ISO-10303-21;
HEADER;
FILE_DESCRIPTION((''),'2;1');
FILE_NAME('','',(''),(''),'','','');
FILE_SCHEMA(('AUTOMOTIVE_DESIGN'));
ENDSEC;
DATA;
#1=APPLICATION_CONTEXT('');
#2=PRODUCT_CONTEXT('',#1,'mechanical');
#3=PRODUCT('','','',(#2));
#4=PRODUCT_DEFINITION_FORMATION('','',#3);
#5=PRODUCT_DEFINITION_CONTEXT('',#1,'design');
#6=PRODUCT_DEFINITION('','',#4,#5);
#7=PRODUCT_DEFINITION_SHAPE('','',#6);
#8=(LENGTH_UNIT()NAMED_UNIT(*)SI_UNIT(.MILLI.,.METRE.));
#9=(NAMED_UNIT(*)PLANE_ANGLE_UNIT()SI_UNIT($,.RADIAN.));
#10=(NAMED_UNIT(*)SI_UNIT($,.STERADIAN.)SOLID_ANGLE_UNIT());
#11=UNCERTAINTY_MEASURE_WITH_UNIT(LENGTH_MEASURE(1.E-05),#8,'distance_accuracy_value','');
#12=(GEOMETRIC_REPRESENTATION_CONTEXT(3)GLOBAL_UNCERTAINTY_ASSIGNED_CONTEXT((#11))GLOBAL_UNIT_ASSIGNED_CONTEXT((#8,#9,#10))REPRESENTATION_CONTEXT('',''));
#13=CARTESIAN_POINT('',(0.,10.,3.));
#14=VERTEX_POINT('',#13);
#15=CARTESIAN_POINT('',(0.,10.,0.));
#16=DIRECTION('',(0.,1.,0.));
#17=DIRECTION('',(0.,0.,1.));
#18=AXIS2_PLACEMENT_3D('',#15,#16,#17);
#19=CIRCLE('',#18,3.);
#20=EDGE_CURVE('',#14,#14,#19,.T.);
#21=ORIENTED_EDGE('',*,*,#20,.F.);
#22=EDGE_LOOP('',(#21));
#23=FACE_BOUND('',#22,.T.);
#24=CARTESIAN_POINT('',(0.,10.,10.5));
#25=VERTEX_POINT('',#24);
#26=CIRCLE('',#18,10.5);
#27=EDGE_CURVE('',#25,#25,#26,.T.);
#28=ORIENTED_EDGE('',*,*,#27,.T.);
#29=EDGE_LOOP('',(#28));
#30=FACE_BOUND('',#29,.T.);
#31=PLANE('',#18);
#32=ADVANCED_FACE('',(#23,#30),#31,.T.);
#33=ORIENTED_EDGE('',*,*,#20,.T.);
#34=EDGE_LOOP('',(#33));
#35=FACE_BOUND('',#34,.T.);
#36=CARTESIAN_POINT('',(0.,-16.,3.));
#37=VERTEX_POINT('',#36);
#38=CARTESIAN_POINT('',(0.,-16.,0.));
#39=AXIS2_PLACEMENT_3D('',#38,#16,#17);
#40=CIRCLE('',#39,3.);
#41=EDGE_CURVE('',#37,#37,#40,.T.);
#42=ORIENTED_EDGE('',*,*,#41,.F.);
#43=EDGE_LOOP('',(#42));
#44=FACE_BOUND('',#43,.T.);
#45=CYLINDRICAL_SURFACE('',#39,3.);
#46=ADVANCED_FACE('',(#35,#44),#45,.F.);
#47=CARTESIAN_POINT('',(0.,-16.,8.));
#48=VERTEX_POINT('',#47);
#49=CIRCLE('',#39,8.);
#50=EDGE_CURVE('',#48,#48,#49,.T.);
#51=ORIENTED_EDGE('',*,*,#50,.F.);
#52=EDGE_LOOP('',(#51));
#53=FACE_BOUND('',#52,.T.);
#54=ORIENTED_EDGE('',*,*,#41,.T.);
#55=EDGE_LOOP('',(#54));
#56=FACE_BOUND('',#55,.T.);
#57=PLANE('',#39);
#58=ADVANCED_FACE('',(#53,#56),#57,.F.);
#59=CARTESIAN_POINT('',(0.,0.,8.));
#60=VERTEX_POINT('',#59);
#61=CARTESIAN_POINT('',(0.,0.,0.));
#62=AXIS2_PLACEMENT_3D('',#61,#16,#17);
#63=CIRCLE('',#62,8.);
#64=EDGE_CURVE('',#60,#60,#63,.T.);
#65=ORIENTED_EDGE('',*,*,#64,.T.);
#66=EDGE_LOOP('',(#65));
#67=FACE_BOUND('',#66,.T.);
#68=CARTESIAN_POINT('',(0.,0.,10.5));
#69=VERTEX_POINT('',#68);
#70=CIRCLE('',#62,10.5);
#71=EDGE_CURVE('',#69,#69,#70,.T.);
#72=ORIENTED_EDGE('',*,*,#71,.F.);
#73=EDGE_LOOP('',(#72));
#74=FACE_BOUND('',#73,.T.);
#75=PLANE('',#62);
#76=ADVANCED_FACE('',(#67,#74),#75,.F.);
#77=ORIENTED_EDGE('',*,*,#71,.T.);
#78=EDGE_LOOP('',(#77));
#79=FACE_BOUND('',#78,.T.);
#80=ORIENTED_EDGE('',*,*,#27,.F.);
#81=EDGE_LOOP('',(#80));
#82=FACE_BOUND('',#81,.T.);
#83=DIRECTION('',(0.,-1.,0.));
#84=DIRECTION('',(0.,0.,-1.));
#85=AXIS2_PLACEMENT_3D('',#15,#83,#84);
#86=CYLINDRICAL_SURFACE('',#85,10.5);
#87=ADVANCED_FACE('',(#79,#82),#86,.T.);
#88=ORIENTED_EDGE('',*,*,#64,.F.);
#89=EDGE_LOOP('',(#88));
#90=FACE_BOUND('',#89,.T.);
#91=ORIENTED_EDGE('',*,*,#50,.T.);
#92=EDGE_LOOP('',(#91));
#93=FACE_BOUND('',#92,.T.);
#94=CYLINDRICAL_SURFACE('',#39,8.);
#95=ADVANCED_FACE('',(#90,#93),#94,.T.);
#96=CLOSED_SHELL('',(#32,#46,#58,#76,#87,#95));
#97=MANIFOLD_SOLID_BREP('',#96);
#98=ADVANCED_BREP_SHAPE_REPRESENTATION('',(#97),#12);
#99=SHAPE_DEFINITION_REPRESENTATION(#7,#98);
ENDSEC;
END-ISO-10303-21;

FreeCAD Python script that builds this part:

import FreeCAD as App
import Part
import Sketcher
from FreeCAD import Vector
Q = App.Units.Quantity

doc = App.newDocument("Part")
body = doc.addObject("PartDesign::Body", "Body")

# Sketch on XZ plane
sketch1 = doc.addObject("Sketcher::SketchObject", "Sketch")
body.addObject(sketch1)
sketch1.AttachmentSupport = (doc.XZ_Plane, [""])
sketch1.MapMode = "FlatFace"
sketch1.addGeometry(Part.Circle(Vector(0, 0, 0), Vector(0, 0, 1), 10), False)
sketch1.addConstraint(Sketcher.Constraint("Coincident", 0, 3, -1, 1))
sketch1.addConstraint(Sketcher.Constraint("Diameter", 0, Q("21 mm")))
pad1 = doc.addObject("PartDesign::Pad", "Pad")
body.addObject(pad1)
pad1.Profile = sketch1
pad1.Length = 10
pad1.Reversed = True

# Sketch on XZ plane
sketch2 = doc.addObject("Sketcher::SketchObject", "Sketch001")
body.addObject(sketch2)
sketch2.AttachmentSupport = (doc.XZ_Plane, [""])
sketch2.MapMode = "FlatFace"
sketch2.addGeometry(Part.Circle(Vector(0, 0, 0), Vector(0, 0, 1), 8), False)
sketch2.addConstraint(Sketcher.Constraint("Coincident", 0, 3, -1, 1))
sketch2.addConstraint(Sketcher.Constraint("Diameter", 0, Q("16 mm")))
pad2 = doc.addObject("PartDesign::Pad", "Pad001")
body.addObject(pad2)
pad2.Profile = sketch2
pad2.Length = 16

# Sketch on XZ plane
sketch3 = doc.addObject("Sketcher::SketchObject", "Sketch002")
body.addObject(sketch3)
sketch3.AttachmentSupport = (doc.XZ_Plane, [""])
sketch3.MapMode = "FlatFace"
sketch3.addGeometry(Part.Circle(Vector(0, 0, 0), Vector(0, 0, 1), 3), False)
sketch3.addConstraint(Sketcher.Constraint("Coincident", 0, 3, -1, 1))
sketch3.addConstraint(Sketcher.Constraint("Diameter", 0, Q("6 mm")))
pocket1 = doc.addObject("PartDesign::Pocket", "Pocket")
body.addObject(pocket1)
pocket1.Profile = sketch3
pocket1.Type = "ThroughAll"
pocket1.Midplane = True

doc.recompute()
